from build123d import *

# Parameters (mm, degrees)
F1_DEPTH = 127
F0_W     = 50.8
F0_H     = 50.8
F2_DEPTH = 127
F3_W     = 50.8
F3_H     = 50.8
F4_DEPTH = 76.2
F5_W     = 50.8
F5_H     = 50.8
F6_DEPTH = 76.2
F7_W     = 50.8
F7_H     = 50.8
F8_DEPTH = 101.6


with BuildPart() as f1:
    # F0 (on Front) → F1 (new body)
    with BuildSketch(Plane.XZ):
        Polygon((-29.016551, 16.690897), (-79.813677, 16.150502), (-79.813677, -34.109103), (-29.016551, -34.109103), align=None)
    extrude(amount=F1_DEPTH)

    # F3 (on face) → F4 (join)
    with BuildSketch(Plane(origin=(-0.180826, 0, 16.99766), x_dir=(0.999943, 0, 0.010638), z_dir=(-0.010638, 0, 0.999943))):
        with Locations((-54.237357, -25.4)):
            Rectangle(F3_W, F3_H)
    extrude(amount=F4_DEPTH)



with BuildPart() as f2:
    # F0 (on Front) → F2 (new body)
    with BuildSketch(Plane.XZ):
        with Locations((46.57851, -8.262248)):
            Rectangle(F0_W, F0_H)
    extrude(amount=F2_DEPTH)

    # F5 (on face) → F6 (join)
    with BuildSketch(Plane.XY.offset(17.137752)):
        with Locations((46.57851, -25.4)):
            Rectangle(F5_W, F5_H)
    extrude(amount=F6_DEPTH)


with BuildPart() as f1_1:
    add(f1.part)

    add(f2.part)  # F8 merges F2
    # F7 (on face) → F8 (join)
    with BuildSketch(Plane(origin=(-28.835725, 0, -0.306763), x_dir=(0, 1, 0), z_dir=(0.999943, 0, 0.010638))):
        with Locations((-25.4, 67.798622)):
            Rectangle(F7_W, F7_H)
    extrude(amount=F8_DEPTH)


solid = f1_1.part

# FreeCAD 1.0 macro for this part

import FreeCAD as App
import Part
import Sketcher
Q = App.Units.Quantity


def add_polygon(sketch, points):
    """Adds a closed chain of lines whose ends are joined by coincident constraints."""
    first, n = sketch.GeometryCount, len(points)
    for a, b in zip(points, points[1:] + points[:1]):
        sketch.addGeometry(Part.LineSegment(App.Vector(*a, 0), App.Vector(*b, 0)), False)
    for i in range(n):
        sketch.addConstraint(Sketcher.Constraint("Coincident", first + i, 2, first + (i + 1) % n, 1))

doc = App.newDocument("Part")
body = doc.addObject("PartDesign::Body", "Body")

# Sketch on XZ plane
sketch1 = doc.addObject("Sketcher::SketchObject", "Sketch")
body.addObject(sketch1)
sketch1.AttachmentSupport = (doc.XZ_Plane, [""])
sketch1.MapMode = "FlatFace"
add_polygon(sketch1, [(-29.016551, 16.690897), (-79.813677, 16.150502), (-79.813677, -34.109103), (-29.016551, -34.109103)])  # lines 0-3
sketch1.addConstraint([
    Sketcher.Constraint("Vertical", 1),
    Sketcher.Constraint("Horizontal", 2),
    Sketcher.Constraint("Vertical", 3),
    Sketcher.Constraint("DistanceY", 3, 1, 3, 2, Q("2 in")),
    Sketcher.Constraint("Distance", 0, Q("2 in")),
    Sketcher.Constraint("DistanceY", -1, 1, 0, 2, Q("16.150502 mm")),
    Sketcher.Constraint("DistanceX", 2, 1, 2, 2, Q("50.797126 mm")),
    Sketcher.Constraint("DistanceX", 2, 2, -1, 1, Q("29.016551 mm")),
])
pad1 = doc.addObject("PartDesign::Pad", "Pad")
body.addObject(pad1)
pad1.Profile = sketch1
pad1.Length = Q("5 in")

# Sketch on an angled plane
sketch2 = doc.addObject("Sketcher::SketchObject", "Sketch001")
body.addObject(sketch2)
sketch2.Placement = App.Placement(App.Vector(-0.180826, 0, 16.99766), App.Rotation(App.Vector(0.999943415, 0, 0.010638004), App.Vector(0, 1, 0), App.Vector(-0.010638004, 0, 0.999943415), "ZXY"))
add_polygon(sketch2, [(-80, 0), (-80, -51), (-29, -51), (-29, 0)])  # lines 0-3
sketch2.addConstraint([
    Sketcher.Constraint("Vertical", 0),
    Sketcher.Constraint("Horizontal", 1),
    Sketcher.Constraint("Vertical", 2),
    Sketcher.Constraint("Horizontal", 3),
    Sketcher.Constraint("PointOnObject", 2, 2, -1),
    Sketcher.Constraint("Equal", 3, 0),
    Sketcher.Constraint("DistanceX", 1, 1, 1, 2, Q("2 in")),
    Sketcher.Constraint("DistanceX", 0, 2, -1, 1, Q("79.637357 mm")),
])
pad2 = doc.addObject("PartDesign::Pad", "Pad001")
body.addObject(pad2)
pad2.Profile = sketch2
pad2.Length = Q("3 in")
body2 = doc.addObject("PartDesign::Body", "Body001")

# Sketch on XZ plane
sketch3 = doc.addObject("Sketcher::SketchObject", "Sketch002")
body2.addObject(sketch3)
sketch3.AttachmentSupport = (doc.getObject("XZ_Plane001"), [""])
sketch3.MapMode = "FlatFace"
add_polygon(sketch3, [(21, 17), (21, -34), (72, -34), (72, 17)])  # lines 0-3
sketch3.addConstraint([
    Sketcher.Constraint("Vertical", 0),
    Sketcher.Constraint("Horizontal", 1),
    Sketcher.Constraint("Vertical", 2),
    Sketcher.Constraint("Horizontal", 3),
    Sketcher.Constraint("Equal", 3, 0),
    Sketcher.Constraint("DistanceX", 1, 1, 1, 2, Q("2 in")),
    Sketcher.Constraint("DistanceX", -1, 1, 0, 2, Q("21.17851 mm")),
    Sketcher.Constraint("DistanceY", -1, 1, 2, 2, Q("17.137752 mm")),
])
pad3 = doc.addObject("PartDesign::Pad", "Pad002")
body2.addObject(pad3)
pad3.Profile = sketch3
pad3.Length = Q("5 in")

# Sketch on XY plane
sketch4 = doc.addObject("Sketcher::SketchObject", "Sketch003")
body2.addObject(sketch4)
sketch4.AttachmentSupport = (doc.getObject("XY_Plane001"), [""])
sketch4.MapMode = "FlatFace"
sketch4.AttachmentOffset = App.Placement(App.Vector(0, 0, 17.137752), App.Rotation())
add_polygon(sketch4, [(21, 0), (21, -51), (72, -51), (72, 0)])  # lines 0-3
sketch4.addConstraint([
    Sketcher.Constraint("Vertical", 0),
    Sketcher.Constraint("Horizontal", 1),
    Sketcher.Constraint("Vertical", 2),
    Sketcher.Constraint("Horizontal", 3),
    Sketcher.Constraint("PointOnObject", 2, 2, -1),
    Sketcher.Constraint("Equal", 3, 0),
    Sketcher.Constraint("DistanceX", 1, 1, 1, 2, Q("2 in")),
    Sketcher.Constraint("DistanceX", -1, 1, 0, 2, Q("21.17851 mm")),
])
pad4 = doc.addObject("PartDesign::Pad", "Pad003")
body2.addObject(pad4)
pad4.Profile = sketch4
pad4.Length = Q("3 in")
body.AllowCompound = True
doc.recompute()

boolean = doc.addObject("PartDesign::Boolean", "Boolean")
body.addObject(boolean)
boolean.Type = "Fuse"
boolean.addObjects([body2])

# Sketch on an angled plane
sketch5 = doc.addObject("Sketcher::SketchObject", "Sketch004")
body.addObject(sketch5)
sketch5.Placement = App.Placement(App.Vector(-28.835725, 0, -0.306763), App.Rotation(App.Vector(0, 1, 0), App.Vector(-0.010638004, 0, 0.999943415), App.Vector(0.999943415, 0, 0.010638004), "ZXY"))
add_polygon(sketch5, [(-51, 93), (-51, 42), (0, 42), (0, 93)])  # lines 0-3
sketch5.addConstraint([
    Sketcher.Constraint("Vertical", 0),
    Sketcher.Constraint("Horizontal", 1),
    Sketcher.Constraint("Vertical", 2),
    Sketcher.Constraint("Horizontal", 3),
    Sketcher.Constraint("PointOnObject", 1, 2, -2),
    Sketcher.Constraint("Equal", 3, 0),
    Sketcher.Constraint("DistanceX", 1, 1, 1, 2, Q("2 in")),
    Sketcher.Constraint("DistanceY", -1, 1, 0, 2, Q("42.398622 mm")),
])
pad5 = doc.addObject("PartDesign::Pad", "Pad004")
body.addObject(pad5)
pad5.Profile = sketch5
pad5.Length = Q("4 in")

doc.recompute()
